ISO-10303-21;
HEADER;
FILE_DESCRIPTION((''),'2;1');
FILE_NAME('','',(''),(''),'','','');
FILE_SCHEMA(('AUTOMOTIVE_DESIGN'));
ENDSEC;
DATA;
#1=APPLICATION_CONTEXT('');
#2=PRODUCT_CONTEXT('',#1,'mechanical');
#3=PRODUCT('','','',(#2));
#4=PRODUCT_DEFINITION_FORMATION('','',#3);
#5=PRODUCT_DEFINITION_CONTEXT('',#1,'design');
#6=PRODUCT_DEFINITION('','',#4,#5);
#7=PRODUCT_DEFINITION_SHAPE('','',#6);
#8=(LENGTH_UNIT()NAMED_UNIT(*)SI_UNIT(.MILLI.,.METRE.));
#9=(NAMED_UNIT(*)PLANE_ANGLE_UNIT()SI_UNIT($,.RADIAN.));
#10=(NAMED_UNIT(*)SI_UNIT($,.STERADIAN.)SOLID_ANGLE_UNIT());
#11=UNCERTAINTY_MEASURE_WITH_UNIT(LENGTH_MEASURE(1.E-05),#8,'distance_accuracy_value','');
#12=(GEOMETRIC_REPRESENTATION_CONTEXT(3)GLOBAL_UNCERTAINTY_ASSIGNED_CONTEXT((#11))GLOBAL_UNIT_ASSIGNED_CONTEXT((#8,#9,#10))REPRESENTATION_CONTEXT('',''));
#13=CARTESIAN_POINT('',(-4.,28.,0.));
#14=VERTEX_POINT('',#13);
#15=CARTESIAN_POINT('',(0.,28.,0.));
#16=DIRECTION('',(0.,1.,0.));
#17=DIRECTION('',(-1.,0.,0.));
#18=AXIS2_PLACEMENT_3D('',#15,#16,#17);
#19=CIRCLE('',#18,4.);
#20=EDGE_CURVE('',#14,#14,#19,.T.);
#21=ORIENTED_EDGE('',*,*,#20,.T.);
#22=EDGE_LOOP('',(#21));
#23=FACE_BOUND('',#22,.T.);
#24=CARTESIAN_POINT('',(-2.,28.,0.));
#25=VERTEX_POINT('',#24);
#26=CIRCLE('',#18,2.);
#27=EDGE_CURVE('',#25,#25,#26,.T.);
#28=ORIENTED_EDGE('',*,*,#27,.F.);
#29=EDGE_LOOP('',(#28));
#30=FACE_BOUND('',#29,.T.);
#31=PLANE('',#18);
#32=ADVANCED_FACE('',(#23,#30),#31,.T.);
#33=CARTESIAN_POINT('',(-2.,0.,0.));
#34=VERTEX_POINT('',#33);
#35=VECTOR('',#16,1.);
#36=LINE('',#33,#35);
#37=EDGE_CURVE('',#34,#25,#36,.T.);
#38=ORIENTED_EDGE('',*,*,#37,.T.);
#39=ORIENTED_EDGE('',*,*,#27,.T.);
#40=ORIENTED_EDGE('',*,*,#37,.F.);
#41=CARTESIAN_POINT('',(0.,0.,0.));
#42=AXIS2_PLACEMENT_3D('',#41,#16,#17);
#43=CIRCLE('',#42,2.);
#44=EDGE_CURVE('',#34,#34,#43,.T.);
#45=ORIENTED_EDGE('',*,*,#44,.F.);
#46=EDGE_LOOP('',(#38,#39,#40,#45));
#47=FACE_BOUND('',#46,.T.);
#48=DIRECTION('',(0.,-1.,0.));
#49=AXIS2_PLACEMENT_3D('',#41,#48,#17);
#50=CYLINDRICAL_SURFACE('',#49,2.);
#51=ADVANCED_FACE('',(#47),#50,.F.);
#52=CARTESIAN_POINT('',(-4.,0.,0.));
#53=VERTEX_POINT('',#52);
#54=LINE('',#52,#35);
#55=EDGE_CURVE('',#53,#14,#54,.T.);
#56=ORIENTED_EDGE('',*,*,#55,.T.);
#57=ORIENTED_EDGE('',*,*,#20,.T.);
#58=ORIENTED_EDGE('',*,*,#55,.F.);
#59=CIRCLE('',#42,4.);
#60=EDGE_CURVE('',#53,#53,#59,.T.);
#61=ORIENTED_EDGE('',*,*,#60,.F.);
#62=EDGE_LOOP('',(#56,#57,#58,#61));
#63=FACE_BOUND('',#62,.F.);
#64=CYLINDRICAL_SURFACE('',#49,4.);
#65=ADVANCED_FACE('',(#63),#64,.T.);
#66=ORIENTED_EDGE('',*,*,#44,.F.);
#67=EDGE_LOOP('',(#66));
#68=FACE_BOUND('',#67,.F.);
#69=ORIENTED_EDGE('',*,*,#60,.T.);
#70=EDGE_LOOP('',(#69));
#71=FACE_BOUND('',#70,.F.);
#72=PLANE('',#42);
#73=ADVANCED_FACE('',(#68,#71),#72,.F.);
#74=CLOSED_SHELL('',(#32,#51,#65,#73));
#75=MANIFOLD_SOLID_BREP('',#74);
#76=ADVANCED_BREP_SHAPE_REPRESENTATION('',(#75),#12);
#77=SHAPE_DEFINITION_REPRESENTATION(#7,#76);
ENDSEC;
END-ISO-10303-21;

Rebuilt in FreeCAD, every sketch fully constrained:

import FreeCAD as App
import Part
import Sketcher
from FreeCAD import Vector
Q = App.Units.Quantity

doc = App.newDocument("Part")
body = doc.addObject("PartDesign::Body", "Body")

# Sketch on XZ plane
sketch1 = doc.addObject("Sketcher::SketchObject", "Sketch")
body.addObject(sketch1)
sketch1.AttachmentSupport = (doc.XZ_Plane, [""])
sketch1.MapMode = "FlatFace"
sketch1.addGeometry(Part.Circle(Vector(0, 0, 0), Vector(0, 0, 1), 4), False)
sketch1.addGeometry(Part.Circle(Vector(0, 0, 0), Vector(0, 0, 1), 2), False)
sketch1.addConstraint(Sketcher.Constraint("Coincident", 0, 3, -1, 1))
sketch1.addConstraint(Sketcher.Constraint("Coincident", 1, 3, -1, 1))
sketch1.addConstraint(Sketcher.Constraint("Diameter", 0, Q("8 mm")))
sketch1.addConstraint(Sketcher.Constraint("Diameter", 1, Q("4 mm")))
pad1 = doc.addObject("PartDesign::Pad", "Pad")
body.addObject(pad1)
pad1.Profile = sketch1
pad1.Length = 28
pad1.Reversed = True

doc.recompute()
